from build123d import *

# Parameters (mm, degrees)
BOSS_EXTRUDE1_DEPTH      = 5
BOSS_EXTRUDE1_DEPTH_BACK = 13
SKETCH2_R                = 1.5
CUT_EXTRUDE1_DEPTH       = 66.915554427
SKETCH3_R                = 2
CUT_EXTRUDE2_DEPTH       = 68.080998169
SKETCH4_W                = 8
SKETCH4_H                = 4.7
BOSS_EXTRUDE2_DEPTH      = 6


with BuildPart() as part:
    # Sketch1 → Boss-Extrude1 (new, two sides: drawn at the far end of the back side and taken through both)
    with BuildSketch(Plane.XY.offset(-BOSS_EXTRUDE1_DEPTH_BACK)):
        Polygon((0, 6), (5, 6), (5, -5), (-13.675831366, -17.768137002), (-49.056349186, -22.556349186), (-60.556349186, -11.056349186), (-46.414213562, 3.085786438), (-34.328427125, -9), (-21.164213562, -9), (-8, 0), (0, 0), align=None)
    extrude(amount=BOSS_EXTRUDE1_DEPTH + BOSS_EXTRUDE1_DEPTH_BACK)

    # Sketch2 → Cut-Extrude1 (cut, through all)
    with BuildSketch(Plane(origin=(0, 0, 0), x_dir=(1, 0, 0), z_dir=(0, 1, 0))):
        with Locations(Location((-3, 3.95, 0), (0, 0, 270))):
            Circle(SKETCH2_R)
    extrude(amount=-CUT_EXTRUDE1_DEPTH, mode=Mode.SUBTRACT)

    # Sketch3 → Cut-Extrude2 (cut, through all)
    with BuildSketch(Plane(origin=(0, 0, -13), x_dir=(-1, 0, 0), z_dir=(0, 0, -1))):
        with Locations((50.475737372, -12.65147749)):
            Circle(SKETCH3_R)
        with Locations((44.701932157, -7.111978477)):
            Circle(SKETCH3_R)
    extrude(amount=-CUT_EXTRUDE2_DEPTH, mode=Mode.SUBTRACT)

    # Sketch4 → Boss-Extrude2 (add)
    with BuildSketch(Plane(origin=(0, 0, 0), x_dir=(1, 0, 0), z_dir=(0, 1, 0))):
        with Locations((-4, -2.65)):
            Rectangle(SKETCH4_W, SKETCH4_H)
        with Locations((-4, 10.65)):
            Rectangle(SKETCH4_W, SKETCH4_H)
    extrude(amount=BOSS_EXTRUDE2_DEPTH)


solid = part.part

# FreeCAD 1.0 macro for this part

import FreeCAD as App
import Part
import Sketcher

V = App.Vector
Q = App.Units.Quantity


def add_polygon(sketch, points):
    """Adds a closed chain of lines whose ends are joined by coincident constraints."""
    first, n = sketch.GeometryCount, len(points)
    for a, b in zip(points, points[1:] + points[:1]):
        sketch.addGeometry(Part.LineSegment(App.Vector(*a, 0), App.Vector(*b, 0)), False)
    for i in range(n):
        sketch.addConstraint(Sketcher.Constraint("Coincident", first + i, 2, first + (i + 1) % n, 1))

doc = App.newDocument("Part")
body = doc.addObject("PartDesign::Body", "Body")

# Sketch on XY plane
sketch1 = doc.addObject("Sketcher::SketchObject", "Sketch")
body.addObject(sketch1)
sketch1.AttachmentSupport = (doc.XY_Plane, [""])
sketch1.MapMode = "FlatFace"
add_polygon(sketch1, [(5, 6), (0, 6), (0, 0), (-8, 0), (-21, -9), (-34, -9), (-46, 3), (-61, -11), (-49, -23), (-14, -18), (5, -5)])  # lines 0-10
sketch1.addConstraint([
    Sketcher.Constraint("Horizontal", 0),
    Sketcher.Constraint("Vertical", 1),
    Sketcher.Constraint("Horizontal", 2),
    Sketcher.Constraint("Horizontal", 4),
    Sketcher.Constraint("Vertical", 10),
    Sketcher.Constraint("Coincident", 1, 2, -1, 1),
    Sketcher.Constraint("Perpendicular", 5, 6),
    Sketcher.Constraint("Perpendicular", 6, 7),
    Sketcher.Constraint("Parallel", 3, 9),
    Sketcher.Constraint("DistanceX", 0, 2, 0, 1, 5.0),
    Sketcher.Constraint("DistanceX", 2, 2, 2, 1, 8.0),
    Sketcher.Constraint("DistanceY", 1, 2, 1, 1, 6.0),
    Sketcher.Constraint("DistanceY", 10, 1, 10, 2, 11.0),
    Sketcher.Constraint("Angle", 5, Q("135 deg")),
    Sketcher.Constraint("Distance", 6, 20.0),
    Sketcher.Constraint("DistanceY", 3, 2, -1, 1, 9.0),
    Sketcher.Constraint("DistanceX", 6, 2, 7, 2, 11.5),
    Sketcher.Constraint("DistanceX", 5, 2, 3, 2, 25.25),
    Sketcher.Constraint("DistanceX", 4, 2, 4, 1, 13.164214),
    Sketcher.Constraint("DistanceX", 6, 2, -1, 1, 60.556349),
    Sketcher.Constraint("DistanceX", 8, 2, -1, 1, 13.675831),
])
pad1 = doc.addObject("PartDesign::Pad", "Pad")
body.addObject(pad1)
pad1.Profile = sketch1
pad1.Type = "TwoLengths"
pad1.Length = 5
pad1.Length2 = 13

# Sketch on XZ plane
sketch2 = doc.addObject("Sketcher::SketchObject", "Sketch001")
body.addObject(sketch2)
sketch2.AttachmentSupport = (doc.XZ_Plane, [""])
sketch2.MapMode = "FlatFace"
sketch2.addGeometry(Part.Circle(V(-3, -4, 0), V(0, 0, 1), 1.5), False)
sketch2.addConstraint([
    Sketcher.Constraint("Diameter", 0, 3.0),
    Sketcher.Constraint("DistanceX", 0, 3, -1, 1, 3.0),
    Sketcher.Constraint("DistanceY", 0, 3, -1, 1, 3.95),
])
pocket1 = doc.addObject("PartDesign::Pocket", "Pocket")
body.addObject(pocket1)
pocket1.Profile = sketch2
pocket1.Type = "ThroughAll"
pocket1.Reversed = True

# Sketch on XY plane
sketch3 = doc.addObject("Sketcher::SketchObject", "Sketch002")
body.addObject(sketch3)
sketch3.AttachmentSupport = (doc.XY_Plane, [""])
sketch3.MapMode = "FlatFace"
sketch3.AttachmentOffset = App.Placement(V(0, 0, -13), App.Rotation())
sketch3.addGeometry([
    Part.Circle(V(-50.5, -12.7, 0), V(0, 0, 1), 2),
    Part.Circle(V(-44.7, -7.1, 0), V(0, 0, 1), 2),
], False)
sketch3.addConstraint([
    Sketcher.Constraint("Equal", 0, 1),
    Sketcher.Constraint("Diameter", 0, 4.0),
    Sketcher.Constraint("DistanceY", 0, 3, 1, 3, 5.539499),
    Sketcher.Constraint("DistanceY", 1, 3, -1, 1, 7.111978),
    Sketcher.Constraint("DistanceX", 0, 3, -1, 1, 50.475737),
    Sketcher.Constraint("DistanceX", 1, 3, -1, 1, 44.701932),
])
pocket2 = doc.addObject("PartDesign::Pocket", "Pocket001")
body.addObject(pocket2)
pocket2.Profile = sketch3
pocket2.Type = "ThroughAll"
pocket2.Reversed = True

# Sketch on XZ plane
sketch4 = doc.addObject("Sketcher::SketchObject", "Sketch003")
body.addObject(sketch4)
sketch4.AttachmentSupport = (doc.XZ_Plane, [""])
sketch4.MapMode = "FlatFace"
add_polygon(sketch4, [(-8, 0.3), (-8, 5), (0, 5), (0, 0.3)])  # lines 0-3
add_polygon(sketch4, [(-8, -13), (-8, -8.3), (0, -8.3), (0, -13)])  # lines 4-7
sketch4.addConstraint([
    Sketcher.Constraint("Vertical", 0),
    Sketcher.Constraint("Horizontal", 1),
    Sketcher.Constraint("Vertical", 2),
    Sketcher.Constraint("Horizontal", 3),
    Sketcher.Constraint("Vertical", 4),
    Sketcher.Constraint("Horizontal", 5),
    Sketcher.Constraint("Vertical", 6),
    Sketcher.Constraint("Horizontal", 7),
    Sketcher.Constraint("PointOnObject", 1, 2, -2),
    Sketcher.Constraint("PointOnObject", 5, 2, -2),
    Sketcher.Constraint("Vertical", 3, 2, 4, 2),
    Sketcher.Constraint("Equal", 2, 4),
    Sketcher.Constraint("DistanceX", 1, 1, 1, 2, 8.0),
    Sketcher.Constraint("DistanceY", 0, 1, 0, 2, 4.7),
    Sketcher.Constraint("DistanceY", -1, 1, 0, 2, 5.0),
    Sketcher.Constraint("DistanceY", 6, 2, -1, 1, 13.0),
])
pad2 = doc.addObject("PartDesign::Pad", "Pad001")
body.addObject(pad2)
pad2.Profile = sketch4
pad2.Length = 6
pad2.Reversed = True

doc.recompute()
